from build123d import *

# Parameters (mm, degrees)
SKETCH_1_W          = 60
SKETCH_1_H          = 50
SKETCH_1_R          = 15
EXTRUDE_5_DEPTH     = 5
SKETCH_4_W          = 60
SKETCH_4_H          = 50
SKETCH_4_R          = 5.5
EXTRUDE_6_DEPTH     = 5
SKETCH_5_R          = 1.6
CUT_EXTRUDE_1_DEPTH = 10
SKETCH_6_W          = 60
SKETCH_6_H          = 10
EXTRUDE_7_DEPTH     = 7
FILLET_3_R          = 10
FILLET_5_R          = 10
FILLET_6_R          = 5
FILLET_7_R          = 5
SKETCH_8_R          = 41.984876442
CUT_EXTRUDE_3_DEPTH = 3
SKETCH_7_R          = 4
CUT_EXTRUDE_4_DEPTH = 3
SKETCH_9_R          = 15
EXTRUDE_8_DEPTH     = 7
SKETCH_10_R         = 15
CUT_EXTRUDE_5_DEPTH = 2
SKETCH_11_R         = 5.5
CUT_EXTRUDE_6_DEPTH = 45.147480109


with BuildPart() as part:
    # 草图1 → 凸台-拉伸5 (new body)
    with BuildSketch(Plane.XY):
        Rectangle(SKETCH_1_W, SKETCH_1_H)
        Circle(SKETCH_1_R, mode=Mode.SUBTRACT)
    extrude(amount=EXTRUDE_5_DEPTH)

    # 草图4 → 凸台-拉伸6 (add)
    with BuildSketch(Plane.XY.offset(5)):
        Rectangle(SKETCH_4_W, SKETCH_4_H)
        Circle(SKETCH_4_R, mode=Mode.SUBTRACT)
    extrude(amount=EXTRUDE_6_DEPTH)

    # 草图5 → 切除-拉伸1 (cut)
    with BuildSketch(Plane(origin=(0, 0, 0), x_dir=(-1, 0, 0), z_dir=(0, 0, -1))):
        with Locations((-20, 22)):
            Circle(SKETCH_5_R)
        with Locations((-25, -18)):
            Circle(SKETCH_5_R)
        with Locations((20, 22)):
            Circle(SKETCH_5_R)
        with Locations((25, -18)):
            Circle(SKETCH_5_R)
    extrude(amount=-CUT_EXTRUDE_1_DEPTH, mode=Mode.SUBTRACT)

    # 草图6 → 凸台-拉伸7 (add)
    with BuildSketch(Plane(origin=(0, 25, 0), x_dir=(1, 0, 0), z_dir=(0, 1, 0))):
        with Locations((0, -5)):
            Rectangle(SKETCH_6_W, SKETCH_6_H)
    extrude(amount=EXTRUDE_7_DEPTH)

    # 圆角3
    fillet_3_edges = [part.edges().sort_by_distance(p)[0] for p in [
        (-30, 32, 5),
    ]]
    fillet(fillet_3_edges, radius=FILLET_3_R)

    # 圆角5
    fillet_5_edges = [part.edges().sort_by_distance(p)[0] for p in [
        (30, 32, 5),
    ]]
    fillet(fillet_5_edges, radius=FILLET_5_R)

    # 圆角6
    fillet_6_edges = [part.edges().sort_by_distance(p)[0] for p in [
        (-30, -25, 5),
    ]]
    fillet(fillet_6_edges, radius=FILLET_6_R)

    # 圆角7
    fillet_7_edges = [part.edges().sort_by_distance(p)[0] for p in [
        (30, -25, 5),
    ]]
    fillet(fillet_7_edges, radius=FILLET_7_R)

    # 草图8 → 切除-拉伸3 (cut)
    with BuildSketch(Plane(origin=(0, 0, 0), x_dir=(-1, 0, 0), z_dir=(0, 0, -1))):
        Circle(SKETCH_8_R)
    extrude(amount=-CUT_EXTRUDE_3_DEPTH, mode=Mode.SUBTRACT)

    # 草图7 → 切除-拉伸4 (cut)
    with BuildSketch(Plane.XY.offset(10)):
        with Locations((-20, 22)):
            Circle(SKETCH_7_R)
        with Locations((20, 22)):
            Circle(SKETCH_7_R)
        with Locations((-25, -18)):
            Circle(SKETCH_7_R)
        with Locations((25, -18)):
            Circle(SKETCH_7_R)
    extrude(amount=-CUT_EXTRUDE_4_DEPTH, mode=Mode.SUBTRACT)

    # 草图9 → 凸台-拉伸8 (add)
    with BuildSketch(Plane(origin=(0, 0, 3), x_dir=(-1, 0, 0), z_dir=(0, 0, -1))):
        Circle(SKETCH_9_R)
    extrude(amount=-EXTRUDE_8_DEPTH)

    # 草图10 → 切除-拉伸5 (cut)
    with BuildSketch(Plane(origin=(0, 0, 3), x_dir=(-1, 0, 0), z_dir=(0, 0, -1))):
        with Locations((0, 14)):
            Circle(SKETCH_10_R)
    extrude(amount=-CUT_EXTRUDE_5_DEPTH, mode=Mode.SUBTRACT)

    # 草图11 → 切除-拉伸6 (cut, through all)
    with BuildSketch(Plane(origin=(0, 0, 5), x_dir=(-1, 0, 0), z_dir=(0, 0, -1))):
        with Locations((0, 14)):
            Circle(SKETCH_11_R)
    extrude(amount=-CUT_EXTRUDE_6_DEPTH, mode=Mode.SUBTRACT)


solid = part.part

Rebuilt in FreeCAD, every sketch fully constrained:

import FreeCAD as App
import Part
import Sketcher
from FreeCAD import Vector


def edges_at(feature, points):
    """Names of the edges that pass closest to the given points."""
    edges = feature.Shape.Edges
    near = lambda p: min(range(len(edges)), key=lambda i: edges[i].distToShape(Part.Vertex(*p))[0])
    return sorted({f"Edge{near(p) + 1}" for p in points})


def add_polygon(sketch, points):
    """Adds a closed chain of lines whose ends are joined by coincident constraints."""
    first, n = sketch.GeometryCount, len(points)
    for a, b in zip(points, points[1:] + points[:1]):
        sketch.addGeometry(Part.LineSegment(App.Vector(*a, 0), App.Vector(*b, 0)), False)
    for i in range(n):
        sketch.addConstraint(Sketcher.Constraint("Coincident", first + i, 2, first + (i + 1) % n, 1))

doc = App.newDocument("Part")
body = doc.addObject("PartDesign::Body", "Body")

sketch1 = doc.addObject("Sketcher::SketchObject", "Sketch")
body.addObject(sketch1)
sketch1.AttachmentSupport = (doc.XY_Plane, [""])
sketch1.MapMode = "FlatFace"
add_polygon(sketch1, [(-30, 25), (-30, -25), (30, -25), (30, 25)])
sketch1.addGeometry(Part.Circle(Vector(0, 0, 0), Vector(0, 0, 1), 15), False)
sketch1.addConstraint(Sketcher.Constraint("Vertical", 0))
sketch1.addConstraint(Sketcher.Constraint("Horizontal", 1))
sketch1.addConstraint(Sketcher.Constraint("Vertical", 2))
sketch1.addConstraint(Sketcher.Constraint("Horizontal", 3))
sketch1.addConstraint(Sketcher.Constraint("Coincident", 4, 3, -1, 1))
sketch1.addConstraint(Sketcher.Constraint("Symmetric", 0, 2, 2, 2, -1, 1))
sketch1.addConstraint(Sketcher.Constraint("Diameter", 4, 30.0))
sketch1.addConstraint(Sketcher.Constraint("DistanceX", 1, 1, 1, 2, 60.0))
sketch1.addConstraint(Sketcher.Constraint("DistanceY", 0, 2, 0, 1, 50.0))
pad1 = doc.addObject("PartDesign::Pad", "Pad")
body.addObject(pad1)
pad1.Profile = sketch1
pad1.Length = 5

sketch2 = doc.addObject("Sketcher::SketchObject", "Sketch001")
body.addObject(sketch2)
sketch2.AttachmentSupport = (doc.XY_Plane, [""])
sketch2.MapMode = "FlatFace"
sketch2.AttachmentOffset = App.Placement(Vector(0, 0, 5), App.Rotation())
add_polygon(sketch2, [(-30, 25), (-30, -25), (30, -25), (30, 25)])
sketch2.addGeometry(Part.Circle(Vector(0, 0, 0), Vector(0, 0, 1), 6), False)
sketch2.addConstraint(Sketcher.Constraint("Vertical", 0))
sketch2.addConstraint(Sketcher.Constraint("Horizontal", 1))
sketch2.addConstraint(Sketcher.Constraint("Vertical", 2))
sketch2.addConstraint(Sketcher.Constraint("Horizontal", 3))
sketch2.addConstraint(Sketcher.Constraint("Coincident", 4, 3, -1, 1))
sketch2.addConstraint(Sketcher.Constraint("Symmetric", 0, 2, 2, 2, -1, 1))
sketch2.addConstraint(Sketcher.Constraint("Diameter", 4, 11.0))
sketch2.addConstraint(Sketcher.Constraint("DistanceX", 1, 1, 1, 2, 60.0))
sketch2.addConstraint(Sketcher.Constraint("DistanceY", 0, 2, 0, 1, 50.0))
pad2 = doc.addObject("PartDesign::Pad", "Pad001")
body.addObject(pad2)
pad2.Profile = sketch2
pad2.Length = 5

sketch3 = doc.addObject("Sketcher::SketchObject", "Sketch002")
body.addObject(sketch3)
sketch3.AttachmentSupport = (doc.XY_Plane, [""])
sketch3.MapMode = "FlatFace"
sketch3.addGeometry(Part.Circle(Vector(20, 22, 0), Vector(0, 0, 1), 1.6), False)
sketch3.addGeometry(Part.Circle(Vector(25, -18, 0), Vector(0, 0, 1), 1.6), False)
sketch3.addGeometry(Part.Circle(Vector(-20, 22, 0), Vector(0, 0, 1), 1.6), False)
sketch3.addGeometry(Part.Circle(Vector(-25, -18, 0), Vector(0, 0, 1), 1.6), False)
sketch3.addConstraint(Sketcher.Constraint("Equal", 0, 1))
sketch3.addConstraint(Sketcher.Constraint("Equal", 1, 2))
sketch3.addConstraint(Sketcher.Constraint("Equal", 2, 3))
sketch3.addConstraint(Sketcher.Constraint("Symmetric", 0, 3, 2, 3, -2))
sketch3.addConstraint(Sketcher.Constraint("Symmetric", 1, 3, 3, 3, -2))
sketch3.addConstraint(Sketcher.Constraint("Diameter", 0, 3.2))
sketch3.addConstraint(Sketcher.Constraint("DistanceX", -1, 1, 0, 3, 20.0))
sketch3.addConstraint(Sketcher.Constraint("DistanceY", -1, 1, 0, 3, 22.0))
sketch3.addConstraint(Sketcher.Constraint("DistanceX", -1, 1, 1, 3, 25.0))
sketch3.addConstraint(Sketcher.Constraint("DistanceY", 1, 3, -1, 1, 18.0))
pocket1 = doc.addObject("PartDesign::Pocket", "Pocket")
body.addObject(pocket1)
pocket1.Profile = sketch3
pocket1.Length = 10
pocket1.Reversed = True

sketch4 = doc.addObject("Sketcher::SketchObject", "Sketch003")
body.addObject(sketch4)
sketch4.AttachmentSupport = (doc.XZ_Plane, [""])
sketch4.MapMode = "FlatFace"
sketch4.AttachmentOffset = App.Placement(Vector(0, 0, -25), App.Rotation())
add_polygon(sketch4, [(-30, 0), (-30, 10), (30, 10), (30, 0)])
sketch4.addConstraint(Sketcher.Constraint("Vertical", 0))
sketch4.addConstraint(Sketcher.Constraint("Horizontal", 1))
sketch4.addConstraint(Sketcher.Constraint("Vertical", 2))
sketch4.addConstraint(Sketcher.Constraint("Horizontal", 3))
sketch4.addConstraint(Sketcher.Constraint("Symmetric", 2, 2, 3, 2, -1, 1))
sketch4.addConstraint(Sketcher.Constraint("DistanceX", 1, 1, 1, 2, 60.0))
sketch4.addConstraint(Sketcher.Constraint("DistanceY", 0, 1, 0, 2, 10.0))
pad3 = doc.addObject("PartDesign::Pad", "Pad002")
body.addObject(pad3)
pad3.Profile = sketch4
pad3.Length = 7
pad3.Reversed = True
doc.recompute()

fillet = doc.addObject("PartDesign::Fillet", "Fillet")
body.addObject(fillet)
fillet.Base = (pad3, edges_at(pad3, [(-30, 32, 5)]))
fillet.Radius = 10
doc.recompute()

fillet2 = doc.addObject("PartDesign::Fillet", "Fillet001")
body.addObject(fillet2)
fillet2.Base = (fillet, edges_at(fillet, [(30, 32, 5)]))
fillet2.Radius = 10
doc.recompute()

fillet3 = doc.addObject("PartDesign::Fillet", "Fillet002")
body.addObject(fillet3)
fillet3.Base = (fillet2, edges_at(fillet2, [(-30, -25, 5)]))
fillet3.Radius = 5
doc.recompute()

fillet4 = doc.addObject("PartDesign::Fillet", "Fillet003")
body.addObject(fillet4)
fillet4.Base = (fillet3, edges_at(fillet3, [(30, -25, 5)]))
fillet4.Radius = 5

sketch5 = doc.addObject("Sketcher::SketchObject", "Sketch004")
body.addObject(sketch5)
sketch5.AttachmentSupport = (doc.XY_Plane, [""])
sketch5.MapMode = "FlatFace"
sketch5.addGeometry(Part.Circle(Vector(0, 0, 0), Vector(0, 0, 1), 42), False)
sketch5.addConstraint(Sketcher.Constraint("Coincident", 0, 3, -1, 1))
sketch5.addConstraint(Sketcher.Constraint("Diameter", 0, 83.969753))
pocket2 = doc.addObject("PartDesign::Pocket", "Pocket001")
body.addObject(pocket2)
pocket2.Profile = sketch5
pocket2.Length = 3
pocket2.Reversed = True

sketch6 = doc.addObject("Sketcher::SketchObject", "Sketch005")
body.addObject(sketch6)
sketch6.AttachmentSupport = (doc.XY_Plane, [""])
sketch6.MapMode = "FlatFace"
sketch6.AttachmentOffset = App.Placement(Vector(0, 0, 10), App.Rotation())
sketch6.addGeometry(Part.Circle(Vector(-20, 22, 0), Vector(0, 0, 1), 4), False)
sketch6.addGeometry(Part.Circle(Vector(20, 22, 0), Vector(0, 0, 1), 4), False)
sketch6.addGeometry(Part.Circle(Vector(-25, -18, 0), Vector(0, 0, 1), 4), False)
sketch6.addGeometry(Part.Circle(Vector(25, -18, 0), Vector(0, 0, 1), 4), False)
sketch6.addConstraint(Sketcher.Constraint("Equal", 0, 1))
sketch6.addConstraint(Sketcher.Constraint("Equal", 1, 2))
sketch6.addConstraint(Sketcher.Constraint("Equal", 2, 3))
sketch6.addConstraint(Sketcher.Constraint("Symmetric", 0, 3, 1, 3, -2))
sketch6.addConstraint(Sketcher.Constraint("Symmetric", 2, 3, 3, 3, -2))
sketch6.addConstraint(Sketcher.Constraint("Diameter", 0, 8.0))
sketch6.addConstraint(Sketcher.Constraint("DistanceX", 0, 3, -1, 1, 20.0))
sketch6.addConstraint(Sketcher.Constraint("DistanceY", -1, 1, 0, 3, 22.0))
sketch6.addConstraint(Sketcher.Constraint("DistanceX", 2, 3, -1, 1, 25.0))
sketch6.addConstraint(Sketcher.Constraint("DistanceY", 2, 3, -1, 1, 18.0))
pocket3 = doc.addObject("PartDesign::Pocket", "Pocket002")
body.addObject(pocket3)
pocket3.Profile = sketch6
pocket3.Length = 3

sketch7 = doc.addObject("Sketcher::SketchObject", "Sketch006")
body.addObject(sketch7)
sketch7.AttachmentSupport = (doc.XY_Plane, [""])
sketch7.MapMode = "FlatFace"
sketch7.AttachmentOffset = App.Placement(Vector(0, 0, 3), App.Rotation())
sketch7.addGeometry(Part.Circle(Vector(0, 0, 0), Vector(0, 0, 1), 15), False)
sketch7.addConstraint(Sketcher.Constraint("Coincident", 0, 3, -1, 1))
sketch7.addConstraint(Sketcher.Constraint("Diameter", 0, 30.0))
pad4 = doc.addObject("PartDesign::Pad", "Pad003")
body.addObject(pad4)
pad4.Profile = sketch7
pad4.Length = 7

sketch8 = doc.addObject("Sketcher::SketchObject", "Sketch007")
body.addObject(sketch8)
sketch8.AttachmentSupport = (doc.XY_Plane, [""])
sketch8.MapMode = "FlatFace"
sketch8.AttachmentOffset = App.Placement(Vector(0, 0, 3), App.Rotation())
sketch8.addGeometry(Part.Circle(Vector(0, 14, 0), Vector(0, 0, 1), 15), False)
sketch8.addConstraint(Sketcher.Constraint("PointOnObject", 0, 3, -2))
sketch8.addConstraint(Sketcher.Constraint("Diameter", 0, 30.0))
sketch8.addConstraint(Sketcher.Constraint("DistanceY", -1, 1, 0, 3, 14.0))
pocket4 = doc.addObject("PartDesign::Pocket", "Pocket003")
body.addObject(pocket4)
pocket4.Profile = sketch8
pocket4.Length = 2
pocket4.Reversed = True

sketch9 = doc.addObject("Sketcher::SketchObject", "Sketch008")
body.addObject(sketch9)
sketch9.AttachmentSupport = (doc.XY_Plane, [""])
sketch9.MapMode = "FlatFace"
sketch9.AttachmentOffset = App.Placement(Vector(0, 0, 5), App.Rotation())
sketch9.addGeometry(Part.Circle(Vector(0, 14, 0), Vector(0, 0, 1), 6), False)
sketch9.addConstraint(Sketcher.Constraint("PointOnObject", 0, 3, -2))
sketch9.addConstraint(Sketcher.Constraint("Diameter", 0, 11.0))
sketch9.addConstraint(Sketcher.Constraint("DistanceY", -1, 1, 0, 3, 14.0))
pocket5 = doc.addObject("PartDesign::Pocket", "Pocket004")
body.addObject(pocket5)
pocket5.Profile = sketch9
pocket5.Type = "ThroughAll"
pocket5.Reversed = True

doc.recompute()
